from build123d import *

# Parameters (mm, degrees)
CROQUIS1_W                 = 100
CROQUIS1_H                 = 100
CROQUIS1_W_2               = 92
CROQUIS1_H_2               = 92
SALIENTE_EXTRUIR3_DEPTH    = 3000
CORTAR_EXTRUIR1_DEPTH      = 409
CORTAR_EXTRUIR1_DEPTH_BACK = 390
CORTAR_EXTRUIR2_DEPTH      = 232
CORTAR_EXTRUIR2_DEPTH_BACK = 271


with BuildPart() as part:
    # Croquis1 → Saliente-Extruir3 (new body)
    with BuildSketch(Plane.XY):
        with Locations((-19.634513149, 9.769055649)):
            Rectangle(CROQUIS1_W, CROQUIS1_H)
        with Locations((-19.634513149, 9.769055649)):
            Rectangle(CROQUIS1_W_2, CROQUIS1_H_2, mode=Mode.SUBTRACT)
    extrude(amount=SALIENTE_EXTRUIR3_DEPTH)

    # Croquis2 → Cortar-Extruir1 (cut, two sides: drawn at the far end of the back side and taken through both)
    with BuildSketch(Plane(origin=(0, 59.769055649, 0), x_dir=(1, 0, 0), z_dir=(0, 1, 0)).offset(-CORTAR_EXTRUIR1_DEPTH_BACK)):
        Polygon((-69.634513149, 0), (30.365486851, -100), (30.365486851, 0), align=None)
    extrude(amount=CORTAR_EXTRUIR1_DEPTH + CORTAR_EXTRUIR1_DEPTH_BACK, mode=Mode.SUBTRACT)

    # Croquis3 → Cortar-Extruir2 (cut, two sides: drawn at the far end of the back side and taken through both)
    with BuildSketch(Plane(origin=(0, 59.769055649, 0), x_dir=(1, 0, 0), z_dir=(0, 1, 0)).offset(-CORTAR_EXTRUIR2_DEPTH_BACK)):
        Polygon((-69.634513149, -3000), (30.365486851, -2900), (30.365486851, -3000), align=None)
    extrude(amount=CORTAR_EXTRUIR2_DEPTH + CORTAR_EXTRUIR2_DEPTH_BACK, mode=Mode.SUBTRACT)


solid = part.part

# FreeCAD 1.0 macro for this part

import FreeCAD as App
import Part
import Sketcher

V = App.Vector

doc = App.newDocument("Part")
params = doc.addObject("Spreadsheet::Sheet", "Params")
for row, (alias, value) in enumerate([
    ("sketch1_width", "100 mm"),
    ("sketch1_width2", "92 mm"),
    ("pad1_length", "3000 mm"),
    ("sketch2_width", "100 mm"),
    ("sketch3_width", "100 mm"),
], start=1):
    params.set(f"A{row}", alias)
    params.set(f"B{row}", "=" + value)
    params.setAlias(f"B{row}", alias)

body = doc.addObject("PartDesign::Body", "Body")

# Sketch on XY plane
sketch1 = body.newObject("Sketcher::SketchObject", "Sketch")
sketch1.AttachmentSupport = (doc.getObject("XY_Plane"), [""])
sketch1.MapMode = "FlatFace"
sketch1.addGeometry([
    Part.LineSegment(V(-69.634513, 59.769056, 0), V(-69.634513, -40.230944, 0)),  # 0
    Part.LineSegment(V(-69.634513, -40.230944, 0), V(30.365487, -40.230944, 0)),  # 1
    Part.LineSegment(V(30.365487, -40.230944, 0), V(30.365487, 59.769056, 0)),  # 2
    Part.LineSegment(V(30.365487, 59.769056, 0), V(-69.634513, 59.769056, 0)),  # 3
    Part.LineSegment(V(26.365487, -36.230944, 0), V(-65.634513, -36.230944, 0)),  # 4
    Part.LineSegment(V(-65.634513, -36.230944, 0), V(-65.634513, 55.769056, 0)),  # 5
    Part.LineSegment(V(-65.634513, 55.769056, 0), V(26.365487, 55.769056, 0)),  # 6
    Part.LineSegment(V(26.365487, 55.769056, 0), V(26.365487, -36.230944, 0)),  # 7
], False)
sketch1.addConstraint([
    Sketcher.Constraint("Coincident", 0, 2, 1, 1),
    Sketcher.Constraint("Coincident", 1, 2, 2, 1),
    Sketcher.Constraint("Coincident", 2, 2, 3, 1),
    Sketcher.Constraint("Coincident", 3, 2, 0, 1),
    Sketcher.Constraint("Coincident", 4, 2, 5, 1),
    Sketcher.Constraint("Coincident", 5, 2, 6, 1),
    Sketcher.Constraint("Coincident", 6, 2, 7, 1),
    Sketcher.Constraint("Coincident", 7, 2, 4, 1),
    Sketcher.Constraint("Vertical", 0),
    Sketcher.Constraint("Horizontal", 1),
    Sketcher.Constraint("Vertical", 2),
    Sketcher.Constraint("Horizontal", 3),
    Sketcher.Constraint("Horizontal", 4),
    Sketcher.Constraint("Vertical", 5),
    Sketcher.Constraint("Horizontal", 6),
    Sketcher.Constraint("Vertical", 7),
    Sketcher.Constraint("Equal", 3, 0),
    Sketcher.Constraint("Equal", 6, 5),
    Sketcher.Constraint("DistanceX", 1, 1, 1, 2, 100.0),
    Sketcher.Constraint("DistanceX", 4, 2, 4, 1, 92.0),
    Sketcher.Constraint("DistanceX", 0, 2, 4, 2, 4.0),
    Sketcher.Constraint("DistanceY", 0, 2, 4, 2, 4.0),
    Sketcher.Constraint("DistanceX", 0, 2, -1, 1, 69.634513),
    Sketcher.Constraint("DistanceY", 0, 2, -1, 1, 40.230944),
])
sketch1.setExpression("Constraints[18]", "Params.sketch1_width")
sketch1.setExpression("Constraints[19]", "Params.sketch1_width2")
pad1 = body.newObject("PartDesign::Pad", "Pad")
pad1.Profile = sketch1
pad1.setExpression("Length", "Params.pad1_length")

# Sketch on XZ plane
sketch2 = body.newObject("Sketcher::SketchObject", "Sketch001")
sketch2.AttachmentSupport = (doc.getObject("XZ_Plane"), [""])
sketch2.MapMode = "FlatFace"
sketch2.AttachmentOffset = App.Placement(V(0, 0, -59.769056), App.Rotation())
sketch2.addGeometry([
    Part.LineSegment(V(-69.634513, 0, 0), V(30.365487, 100, 0)),
    Part.LineSegment(V(30.365487, 100, 0), V(30.365487, 0, 0)),
    Part.LineSegment(V(30.365487, 0, 0), V(-69.634513, 0, 0)),
], False)
sketch2.addConstraint([
    Sketcher.Constraint("Coincident", 0, 2, 1, 1),
    Sketcher.Constraint("Coincident", 1, 2, 2, 1),
    Sketcher.Constraint("Coincident", 2, 2, 0, 1),
    Sketcher.Constraint("Vertical", 1),
    Sketcher.Constraint("Horizontal", 2),
    Sketcher.Constraint("PointOnObject", 1, 2, -1),
    Sketcher.Constraint("Equal", 2, 1),
    Sketcher.Constraint("DistanceX", 2, 2, 2, 1, 100.0),
    Sketcher.Constraint("DistanceX", -1, 1, 0, 2, 30.365487),
])
sketch2.setExpression("Constraints[7]", "Params.sketch2_width")
pocket1 = body.newObject("PartDesign::Pocket", "Pocket")
pocket1.Profile = sketch2
pocket1.Type = "ThroughAll"
pocket1.Midplane = True

# Sketch on XZ plane
sketch3 = body.newObject("Sketcher::SketchObject", "Sketch002")
sketch3.AttachmentSupport = (doc.getObject("XZ_Plane"), [""])
sketch3.MapMode = "FlatFace"
sketch3.AttachmentOffset = App.Placement(V(0, 0, -59.769056), App.Rotation())
sketch3.addGeometry([
    Part.LineSegment(V(30.365487, 2900, 0), V(-69.634513, 3000, 0)),
    Part.LineSegment(V(-69.634513, 3000, 0), V(30.365487, 3000, 0)),
    Part.LineSegment(V(30.365487, 3000, 0), V(30.365487, 2900, 0)),
], False)
sketch3.addConstraint([
    Sketcher.Constraint("Coincident", 0, 2, 1, 1),
    Sketcher.Constraint("Coincident", 1, 2, 2, 1),
    Sketcher.Constraint("Coincident", 2, 2, 0, 1),
    Sketcher.Constraint("Horizontal", 1),
    Sketcher.Constraint("Vertical", 2),
    Sketcher.Constraint("Equal", 1, 2),
    Sketcher.Constraint("DistanceX", 1, 1, 1, 2, 100.0),
    Sketcher.Constraint("DistanceY", -1, 1, 0, 2, 3000.0),
    Sketcher.Constraint("DistanceX", 0, 2, -1, 1, 69.634513),
])
sketch3.setExpression("Constraints[6]", "Params.sketch3_width")
pocket2 = body.newObject("PartDesign::Pocket", "Pocket001")
pocket2.Profile = sketch3
pocket2.Type = "ThroughAll"
pocket2.Midplane = True

doc.recompute()
